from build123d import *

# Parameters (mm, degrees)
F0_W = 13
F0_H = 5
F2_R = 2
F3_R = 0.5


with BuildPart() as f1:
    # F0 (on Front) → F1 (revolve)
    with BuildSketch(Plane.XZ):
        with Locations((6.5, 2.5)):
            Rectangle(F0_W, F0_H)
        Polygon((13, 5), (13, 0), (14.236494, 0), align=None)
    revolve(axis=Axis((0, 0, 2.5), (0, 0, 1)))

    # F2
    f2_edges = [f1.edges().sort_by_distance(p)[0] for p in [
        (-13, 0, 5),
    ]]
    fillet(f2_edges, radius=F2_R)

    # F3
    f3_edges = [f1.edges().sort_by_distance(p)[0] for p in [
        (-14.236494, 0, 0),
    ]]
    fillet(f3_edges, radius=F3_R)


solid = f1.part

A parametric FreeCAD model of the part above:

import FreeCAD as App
import Part
import Sketcher
from FreeCAD import Vector
Q = App.Units.Quantity


def edges_at(feature, points):
    """Names of the edges that pass closest to the given points."""
    edges = feature.Shape.Edges
    near = lambda p: min(range(len(edges)), key=lambda i: edges[i].distToShape(Part.Vertex(*p))[0])
    return sorted({f"Edge{near(p) + 1}" for p in points})

doc = App.newDocument("Part")
body = doc.addObject("PartDesign::Body", "Body")

sketch1 = body.newObject("Sketcher::SketchObject", "Sketch")
sketch1.AttachmentSupport = (doc.getObject("XZ_Plane"), [""])
sketch1.MapMode = "FlatFace"
sketch1.addGeometry(Part.LineSegment(Vector(0, 5, 0), Vector(0, 0, 0)), False)
sketch1.addGeometry(Part.LineSegment(Vector(0, 0, 0), Vector(14, 0, 0)), False)
sketch1.addGeometry(Part.LineSegment(Vector(14, 0, 0), Vector(13, 5, 0)), False)
sketch1.addGeometry(Part.LineSegment(Vector(13, 5, 0), Vector(0, 5, 0)), False)
sketch1.addConstraint(Sketcher.Constraint("Coincident", 0, 2, 1, 1))
sketch1.addConstraint(Sketcher.Constraint("Coincident", 1, 2, 2, 1))
sketch1.addConstraint(Sketcher.Constraint("Coincident", 2, 2, 3, 1))
sketch1.addConstraint(Sketcher.Constraint("Coincident", 3, 2, 0, 1))
sketch1.addConstraint(Sketcher.Constraint("Vertical", 0))
sketch1.addConstraint(Sketcher.Constraint("Horizontal", 1))
sketch1.addConstraint(Sketcher.Constraint("Horizontal", 3))
sketch1.addConstraint(Sketcher.Constraint("Coincident", 0, 2, -1, 1))
sketch1.addConstraint(Sketcher.Constraint("DistanceX", 3, 2, 3, 1, Q("13 mm")))
sketch1.addConstraint(Sketcher.Constraint("DistanceY", 0, 2, 0, 1, Q("5 mm")))
sketch1.addConstraint(Sketcher.Constraint("DistanceX", 1, 1, 1, 2, Q("14.236494 mm")))
revolution = body.newObject("PartDesign::Revolution", "Revolution")
revolution.Profile = sketch1
revolution.ReferenceAxis = (sketch1, ["V_Axis"])
revolution.Angle = 360
doc.recompute()

fillet = body.newObject("PartDesign::Fillet", "Fillet")
fillet.Base = (revolution, edges_at(revolution, [(-13, 0, 5)]))
fillet.Radius = 2
doc.recompute()

fillet2 = body.newObject("PartDesign::Fillet", "Fillet001")
fillet2.Base = (fillet, edges_at(fillet, [(-14.236, 0, 0)]))
fillet2.Radius = 0.5

doc.recompute()
